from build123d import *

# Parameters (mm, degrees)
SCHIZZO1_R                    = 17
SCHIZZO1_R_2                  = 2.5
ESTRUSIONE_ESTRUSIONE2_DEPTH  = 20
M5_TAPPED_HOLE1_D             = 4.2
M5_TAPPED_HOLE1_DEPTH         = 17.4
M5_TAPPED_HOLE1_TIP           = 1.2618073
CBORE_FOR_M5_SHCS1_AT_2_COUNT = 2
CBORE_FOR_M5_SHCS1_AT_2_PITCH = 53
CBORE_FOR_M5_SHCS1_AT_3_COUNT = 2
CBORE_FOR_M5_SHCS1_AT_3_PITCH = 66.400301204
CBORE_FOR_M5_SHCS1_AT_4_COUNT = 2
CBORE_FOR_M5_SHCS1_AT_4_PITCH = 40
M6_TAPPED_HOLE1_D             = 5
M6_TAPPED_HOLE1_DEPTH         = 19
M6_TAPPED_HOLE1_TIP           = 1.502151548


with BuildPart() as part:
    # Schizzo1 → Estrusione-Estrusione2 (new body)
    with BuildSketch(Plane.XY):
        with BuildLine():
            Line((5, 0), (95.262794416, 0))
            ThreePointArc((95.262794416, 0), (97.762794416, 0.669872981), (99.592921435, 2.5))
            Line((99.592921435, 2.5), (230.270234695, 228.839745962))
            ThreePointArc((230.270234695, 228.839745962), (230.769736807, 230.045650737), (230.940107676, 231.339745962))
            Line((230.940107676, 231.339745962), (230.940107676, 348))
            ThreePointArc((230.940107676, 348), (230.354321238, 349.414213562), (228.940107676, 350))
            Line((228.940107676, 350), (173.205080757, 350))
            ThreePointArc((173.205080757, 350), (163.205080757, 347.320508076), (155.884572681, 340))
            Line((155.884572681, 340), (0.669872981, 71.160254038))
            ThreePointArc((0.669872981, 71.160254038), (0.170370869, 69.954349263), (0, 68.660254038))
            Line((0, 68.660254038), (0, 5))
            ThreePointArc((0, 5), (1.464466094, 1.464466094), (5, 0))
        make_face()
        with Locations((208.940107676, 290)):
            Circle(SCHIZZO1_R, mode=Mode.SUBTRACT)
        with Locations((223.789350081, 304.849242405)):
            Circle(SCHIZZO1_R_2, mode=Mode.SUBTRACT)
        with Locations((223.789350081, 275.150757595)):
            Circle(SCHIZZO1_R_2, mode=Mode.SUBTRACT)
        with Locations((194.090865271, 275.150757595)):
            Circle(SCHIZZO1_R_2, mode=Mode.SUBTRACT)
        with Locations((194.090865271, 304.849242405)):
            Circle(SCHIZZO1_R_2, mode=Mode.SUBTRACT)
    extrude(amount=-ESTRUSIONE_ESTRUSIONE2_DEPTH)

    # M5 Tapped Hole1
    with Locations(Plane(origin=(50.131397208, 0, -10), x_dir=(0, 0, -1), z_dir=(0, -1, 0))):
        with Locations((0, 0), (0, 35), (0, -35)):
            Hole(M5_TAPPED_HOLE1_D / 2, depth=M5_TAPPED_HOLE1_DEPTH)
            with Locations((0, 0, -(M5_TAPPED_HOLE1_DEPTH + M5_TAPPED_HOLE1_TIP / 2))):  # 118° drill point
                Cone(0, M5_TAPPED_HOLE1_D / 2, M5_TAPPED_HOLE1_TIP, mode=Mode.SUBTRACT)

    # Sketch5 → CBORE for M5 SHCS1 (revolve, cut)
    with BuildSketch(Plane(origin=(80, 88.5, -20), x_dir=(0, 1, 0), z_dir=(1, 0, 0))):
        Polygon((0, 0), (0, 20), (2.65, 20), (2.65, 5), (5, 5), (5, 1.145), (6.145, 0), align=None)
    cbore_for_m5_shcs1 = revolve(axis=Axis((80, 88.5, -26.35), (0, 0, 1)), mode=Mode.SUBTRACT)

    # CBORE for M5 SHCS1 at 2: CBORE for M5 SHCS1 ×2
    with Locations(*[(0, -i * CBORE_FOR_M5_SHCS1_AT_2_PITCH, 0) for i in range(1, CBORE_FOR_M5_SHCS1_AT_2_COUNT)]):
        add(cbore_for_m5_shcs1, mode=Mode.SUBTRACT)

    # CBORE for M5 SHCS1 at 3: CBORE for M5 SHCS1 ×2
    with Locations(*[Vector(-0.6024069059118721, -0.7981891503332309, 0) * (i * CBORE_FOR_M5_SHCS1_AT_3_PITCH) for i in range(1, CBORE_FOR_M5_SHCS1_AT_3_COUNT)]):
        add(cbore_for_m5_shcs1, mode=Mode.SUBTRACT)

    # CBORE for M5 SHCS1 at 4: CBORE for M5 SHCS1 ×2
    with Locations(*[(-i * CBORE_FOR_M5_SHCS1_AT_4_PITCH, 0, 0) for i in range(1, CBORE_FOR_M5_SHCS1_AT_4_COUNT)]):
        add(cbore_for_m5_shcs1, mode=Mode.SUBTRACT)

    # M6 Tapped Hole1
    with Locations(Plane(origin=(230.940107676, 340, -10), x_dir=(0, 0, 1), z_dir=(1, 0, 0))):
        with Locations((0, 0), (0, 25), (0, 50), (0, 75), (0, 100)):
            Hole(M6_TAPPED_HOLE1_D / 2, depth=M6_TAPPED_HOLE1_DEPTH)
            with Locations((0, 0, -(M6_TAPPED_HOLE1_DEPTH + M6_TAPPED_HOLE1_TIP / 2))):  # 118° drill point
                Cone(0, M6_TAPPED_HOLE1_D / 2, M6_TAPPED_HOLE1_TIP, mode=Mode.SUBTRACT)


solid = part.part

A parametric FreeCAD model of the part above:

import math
import FreeCAD as App
import Part
import Sketcher

V = App.Vector
Q = App.Units.Quantity


def add_polygon(sketch, points):
    """Adds a closed chain of lines whose ends are joined by coincident constraints."""
    first, n = sketch.GeometryCount, len(points)
    for a, b in zip(points, points[1:] + points[:1]):
        sketch.addGeometry(Part.LineSegment(App.Vector(*a, 0), App.Vector(*b, 0)), False)
    for i in range(n):
        sketch.addConstraint(Sketcher.Constraint("Coincident", first + i, 2, first + (i + 1) % n, 1))

doc = App.newDocument("Part")
body = doc.addObject("PartDesign::Body", "Body")

# Sketch on XY plane
sketch1 = doc.addObject("Sketcher::SketchObject", "Sketch")
body.addObject(sketch1)
sketch1.AttachmentSupport = (doc.XY_Plane, [""])
sketch1.MapMode = "FlatFace"
sketch1.addGeometry(Part.LineSegment(V(5, 0, 0), V(95.262794, 0, 0)), False)
sketch1.addGeometry(Part.ArcOfCircle(Part.Circle(V(95.262794, 5, 0), V(0, 0, 1), 5), math.radians(-90), math.radians(-30)), False)
sketch1.addGeometry(Part.LineSegment(V(99.592921, 2.5, 0), V(230.270235, 228.839746, 0)), False)
sketch1.addGeometry(Part.ArcOfCircle(Part.Circle(V(225.940108, 231.339746, 0), V(0, 0, 1), 5), math.radians(-30), math.radians(0)), False)
sketch1.addGeometry(Part.LineSegment(V(230.940108, 231.339746, 0), V(230.940108, 348, 0)), False)
sketch1.addGeometry(Part.ArcOfCircle(Part.Circle(V(228.940108, 348, 0), V(0, 0, 1), 2), math.radians(0), math.radians(90)), False)
sketch1.addGeometry(Part.LineSegment(V(228.940108, 350, 0), V(173.205081, 350, 0)), False)
sketch1.addGeometry(Part.ArcOfCircle(Part.Circle(V(173.205081, 330, 0), V(0, 0, 1), 20), math.radians(90), math.radians(150)), False)
sketch1.addGeometry(Part.LineSegment(V(155.884573, 340, 0), V(0.669873, 71.160254, 0)), False)
sketch1.addGeometry(Part.ArcOfCircle(Part.Circle(V(5, 68.660254, 0), V(0, 0, 1), 5), math.radians(150), math.radians(180)), False)
sketch1.addGeometry(Part.LineSegment(V(0, 68.660254, 0), V(0, 5, 0)), False)
sketch1.addGeometry(Part.ArcOfCircle(Part.Circle(V(5, 5, 0), V(0, 0, 1), 5), math.radians(180), math.radians(270)), False)
sketch1.addGeometry(Part.Circle(V(194.090865, 275.150758, 0), V(0, 0, 1), 2.5), False)
sketch1.addGeometry(Part.Circle(V(223.78935, 275.150758, 0), V(0, 0, 1), 2.5), False)
sketch1.addGeometry(Part.Circle(V(208.940108, 290, 0), V(0, 0, 1), 17), False)
sketch1.addGeometry(Part.Circle(V(194.090865, 304.849242, 0), V(0, 0, 1), 2.5), False)
sketch1.addGeometry(Part.Circle(V(223.78935, 304.849242, 0), V(0, 0, 1), 2.5), False)
sketch1.addConstraint(Sketcher.Constraint("Tangent", 0, 2, 1, 1))
sketch1.addConstraint(Sketcher.Constraint("Tangent", 1, 2, 2, 1))
sketch1.addConstraint(Sketcher.Constraint("Tangent", 2, 2, 3, 1))
sketch1.addConstraint(Sketcher.Constraint("Tangent", 3, 2, 4, 1))
sketch1.addConstraint(Sketcher.Constraint("Tangent", 4, 2, 5, 1))
sketch1.addConstraint(Sketcher.Constraint("Tangent", 5, 2, 6, 1))
sketch1.addConstraint(Sketcher.Constraint("Tangent", 6, 2, 7, 1))
sketch1.addConstraint(Sketcher.Constraint("Tangent", 7, 2, 8, 1))
sketch1.addConstraint(Sketcher.Constraint("Tangent", 8, 2, 9, 1))
sketch1.addConstraint(Sketcher.Constraint("Tangent", 9, 2, 10, 1))
sketch1.addConstraint(Sketcher.Constraint("Tangent", 10, 2, 11, 1))
sketch1.addConstraint(Sketcher.Constraint("Tangent", 11, 2, 0, 1))
sketch1.addConstraint(Sketcher.Constraint("Horizontal", 0))
sketch1.addConstraint(Sketcher.Constraint("Vertical", 4))
sketch1.addConstraint(Sketcher.Constraint("Horizontal", 6))
sketch1.addConstraint(Sketcher.Constraint("Vertical", 10))
sketch1.addConstraint(Sketcher.Constraint("Equal", 1, 3))
sketch1.addConstraint(Sketcher.Constraint("Equal", 3, 9))
sketch1.addConstraint(Sketcher.Constraint("Equal", 9, 11))
sketch1.addConstraint(Sketcher.Constraint("Equal", 12, 13))
sketch1.addConstraint(Sketcher.Constraint("Equal", 13, 15))
sketch1.addConstraint(Sketcher.Constraint("Equal", 15, 16))
sketch1.addConstraint(Sketcher.Constraint("PointOnObject", 0, 2, -1))
sketch1.addConstraint(Sketcher.Constraint("PointOnObject", 9, 2, -2))
sketch1.addConstraint(Sketcher.Constraint("Parallel", 2, 8))
sketch1.addConstraint(Sketcher.Constraint("Horizontal", 12, 3, 13, 3))
sketch1.addConstraint(Sketcher.Constraint("Horizontal", 15, 3, 16, 3))
sketch1.addConstraint(Sketcher.Constraint("Vertical", 12, 3, 15, 3))
sketch1.addConstraint(Sketcher.Constraint("Vertical", 13, 3, 16, 3))
sketch1.addConstraint(Sketcher.Constraint("Diameter", 12, Q("5 mm")))
sketch1.addConstraint(Sketcher.Constraint("Diameter", 14, Q("34 mm")))
sketch1.addConstraint(Sketcher.Constraint("Radius", 1, Q("5 mm")))
sketch1.addConstraint(Sketcher.Constraint("Radius", 5, Q("2 mm")))
sketch1.addConstraint(Sketcher.Constraint("Radius", 7, Q("20 mm")))
sketch1.addConstraint(Sketcher.Constraint("Angle", 2, Q("60 deg")))
sketch1.addConstraint(Sketcher.Constraint("DistanceY", -1, 1, 5, 3, Q("348 mm")))
sketch1.addConstraint(Sketcher.Constraint("DistanceY", -1, 1, 14, 3, Q("290 mm")))
sketch1.addConstraint(Sketcher.Constraint("DistanceX", 14, 3, 3, 3, Q("17 mm")))
sketch1.addConstraint(Sketcher.Constraint("Distance", 8, Q("310.429399 mm")))
sketch1.addConstraint(Sketcher.Constraint("DistanceX", 0, 1, 0, 2, Q("90.262794 mm")))
sketch1.addConstraint(Sketcher.Constraint("DistanceX", 6, 2, 6, 1, Q("55.735027 mm")))
sketch1.addConstraint(Sketcher.Constraint("DistanceX", -1, 1, 13, 3, Q("223.78935 mm")))
sketch1.addConstraint(Sketcher.Constraint("DistanceY", 3, 3, 12, 3, Q("43.811012 mm")))
sketch1.addConstraint(Sketcher.Constraint("DistanceX", 1, 3, 12, 3, Q("98.828071 mm")))
sketch1.addConstraint(Sketcher.Constraint("DistanceY", -1, 1, 15, 3, Q("304.849242 mm")))
pad1 = doc.addObject("PartDesign::Pad", "Pad")
body.addObject(pad1)
pad1.Profile = sketch1
pad1.Length = 20
pad1.Reversed = True

# Sketch on XZ plane
sketch2 = doc.addObject("Sketcher::SketchObject", "Sketch001")
body.addObject(sketch2)
sketch2.AttachmentSupport = (doc.XZ_Plane, [""])
sketch2.MapMode = "FlatFace"
sketch2.addGeometry(Part.Circle(V(50.131397, -10, 0), V(0, 0, 1), 2.1), False)
sketch2.addGeometry(Part.Circle(V(85.131397, -10, 0), V(0, 0, 1), 2.1), False)
sketch2.addGeometry(Part.Circle(V(15.131397, -10, 0), V(0, 0, 1), 2.1), False)
sketch2.addConstraint(Sketcher.Constraint("Equal", 0, 1))
sketch2.addConstraint(Sketcher.Constraint("Equal", 1, 2))
sketch2.addConstraint(Sketcher.Constraint("Horizontal", 0, 3, 1, 3))
sketch2.addConstraint(Sketcher.Constraint("Horizontal", 1, 3, 2, 3))
sketch2.addConstraint(Sketcher.Constraint("Diameter", 0, Q("4.2 mm")))
sketch2.addConstraint(Sketcher.Constraint("DistanceY", 0, 3, -1, 1, Q("10 mm")))
sketch2.addConstraint(Sketcher.Constraint("DistanceX", 0, 3, 1, 3, Q("35 mm")))
sketch2.addConstraint(Sketcher.Constraint("DistanceX", 2, 3, 0, 3, Q("35 mm")))
sketch2.addConstraint(Sketcher.Constraint("DistanceX", -1, 1, 0, 3, Q("50.131397 mm")))
doc.recompute()
hole = doc.addObject("PartDesign::Hole", "Hole")
body.addObject(hole)
hole.Profile = sketch2
hole.ThreadType = "None"
hole.Diameter = 4.2
hole.DepthType = "Dimension"
hole.Depth = 17.4
hole.DrillPoint = "Angled"
hole.DrillPointAngle = 118

# Sketch on YZ plane
sketch3 = doc.addObject("Sketcher::SketchObject", "Sketch002")
body.addObject(sketch3)
sketch3.AttachmentSupport = (doc.YZ_Plane, [""])
sketch3.MapMode = "FlatFace"
sketch3.AttachmentOffset = App.Placement(V(0, 0, 80), App.Rotation())
add_polygon(sketch3, [(88.5, 0), (88.5, -20), (94.645, -20), (93.5, -18.855), (93.5, -15), (91.15, -15), (91.15, 0)])  # lines 0-6
sketch3.addGeometry(Part.LineSegment(V(88.5, -20, 0), V(88.5, 0, 0)), True)  # axis
sketch3.addConstraint(Sketcher.Constraint("Vertical", 0))
sketch3.addConstraint(Sketcher.Constraint("Horizontal", 1))
sketch3.addConstraint(Sketcher.Constraint("Vertical", 3))
sketch3.addConstraint(Sketcher.Constraint("Horizontal", 4))
sketch3.addConstraint(Sketcher.Constraint("Vertical", 5))
sketch3.addConstraint(Sketcher.Constraint("Horizontal", 6))
sketch3.addConstraint(Sketcher.Constraint("Vertical", 7))
sketch3.addConstraint(Sketcher.Constraint("Coincident", 7, 1, 0, 2))
sketch3.addConstraint(Sketcher.Constraint("PointOnObject", 5, 2, -1))
sketch3.addConstraint(Sketcher.Constraint("PointOnObject", 7, 2, -1))
sketch3.addConstraint(Sketcher.Constraint("DistanceY", 0, 2, 0, 1, Q("20 mm")))
sketch3.addConstraint(Sketcher.Constraint("DistanceY", 5, 1, 5, 2, Q("15 mm")))
sketch3.addConstraint(Sketcher.Constraint("Angle", 2, Q("135 deg")))
sketch3.addConstraint(Sketcher.Constraint("DistanceX", 0, 2, 2, 2, Q("5 mm")))
sketch3.addConstraint(Sketcher.Constraint("DistanceX", 4, 2, 4, 1, Q("2.35 mm")))
sketch3.addConstraint(Sketcher.Constraint("DistanceX", -1, 1, 0, 2, Q("88.5 mm")))
sketch3.addConstraint(Sketcher.Constraint("DistanceX", 1, 1, 1, 2, Q("6.145 mm")))
groove = doc.addObject("PartDesign::Groove", "Groove")
body.addObject(groove)
groove.Profile = sketch3
groove.ReferenceAxis = (sketch3, ["Axis0"])
groove.Angle = 360
doc.recompute()

linearpattern = doc.addObject("PartDesign::LinearPattern", "LinearPattern")
body.addObject(linearpattern)
linearpattern.Originals = [groove]
linearpattern.Direction = (doc.Y_Axis, [""])
linearpattern.Mode = "offset"
linearpattern.Offset = 53
linearpattern.Occurrences = 2
linearpattern.Reversed = True
body.Tip = linearpattern
doc.recompute()

datumline = doc.addObject("PartDesign::Line", "DatumLine")
body.addObject(datumline)
datumline.Placement = App.Placement(V(0, 0, 0), App.Rotation(V(0, 0, 1), V(-0.602406906, -0.79818915, 0)))
linearpattern2 = doc.addObject("PartDesign::LinearPattern", "LinearPattern001")
body.addObject(linearpattern2)
linearpattern2.Originals = [groove]
linearpattern2.Direction = (datumline, [""])
linearpattern2.Mode = "offset"
linearpattern2.Offset = 66.400301
linearpattern2.Occurrences = 2
body.Tip = linearpattern2
doc.recompute()

linearpattern3 = doc.addObject("PartDesign::LinearPattern", "LinearPattern002")
body.addObject(linearpattern3)
linearpattern3.Originals = [groove]
linearpattern3.Direction = (doc.X_Axis, [""])
linearpattern3.Mode = "offset"
linearpattern3.Offset = 40
linearpattern3.Occurrences = 2
linearpattern3.Reversed = True
body.Tip = linearpattern3

# Sketch on YZ plane
sketch4 = doc.addObject("Sketcher::SketchObject", "Sketch003")
body.addObject(sketch4)
sketch4.AttachmentSupport = (doc.YZ_Plane, [""])
sketch4.MapMode = "FlatFace"
sketch4.AttachmentOffset = App.Placement(V(0, 0, 230.940108), App.Rotation())
sketch4.addGeometry(Part.Circle(V(340, -10, 0), V(0, 0, 1), 2.5), False)
sketch4.addGeometry(Part.Circle(V(315, -10, 0), V(0, 0, 1), 2.5), False)
sketch4.addGeometry(Part.Circle(V(290, -10, 0), V(0, 0, 1), 2.5), False)
sketch4.addGeometry(Part.Circle(V(265, -10, 0), V(0, 0, 1), 2.5), False)
sketch4.addGeometry(Part.Circle(V(240, -10, 0), V(0, 0, 1), 2.5), False)
sketch4.addConstraint(Sketcher.Constraint("Equal", 0, 1))
sketch4.addConstraint(Sketcher.Constraint("Equal", 1, 2))
sketch4.addConstraint(Sketcher.Constraint("Equal", 2, 3))
sketch4.addConstraint(Sketcher.Constraint("Equal", 3, 4))
sketch4.addConstraint(Sketcher.Constraint("Horizontal", 0, 3, 1, 3))
sketch4.addConstraint(Sketcher.Constraint("Horizontal", 1, 3, 2, 3))
sketch4.addConstraint(Sketcher.Constraint("Horizontal", 2, 3, 3, 3))
sketch4.addConstraint(Sketcher.Constraint("Horizontal", 3, 3, 4, 3))
sketch4.addConstraint(Sketcher.Constraint("Diameter", 0, Q("5 mm")))
sketch4.addConstraint(Sketcher.Constraint("DistanceX", -1, 1, 0, 3, Q("340 mm")))
sketch4.addConstraint(Sketcher.Constraint("DistanceY", 0, 3, -1, 1, Q("10 mm")))
sketch4.addConstraint(Sketcher.Constraint("DistanceX", -1, 1, 1, 3, Q("315 mm")))
sketch4.addConstraint(Sketcher.Constraint("DistanceX", -1, 1, 2, 3, Q("290 mm")))
sketch4.addConstraint(Sketcher.Constraint("DistanceX", -1, 1, 3, 3, Q("265 mm")))
sketch4.addConstraint(Sketcher.Constraint("DistanceX", -1, 1, 4, 3, Q("240 mm")))
doc.recompute()
hole2 = doc.addObject("PartDesign::Hole", "Hole001")
body.addObject(hole2)
hole2.Profile = sketch4
hole2.ThreadType = "None"
hole2.Diameter = 5
hole2.DepthType = "Dimension"
hole2.Depth = 19
hole2.DrillPoint = "Angled"
hole2.DrillPointAngle = 118

doc.recompute()
